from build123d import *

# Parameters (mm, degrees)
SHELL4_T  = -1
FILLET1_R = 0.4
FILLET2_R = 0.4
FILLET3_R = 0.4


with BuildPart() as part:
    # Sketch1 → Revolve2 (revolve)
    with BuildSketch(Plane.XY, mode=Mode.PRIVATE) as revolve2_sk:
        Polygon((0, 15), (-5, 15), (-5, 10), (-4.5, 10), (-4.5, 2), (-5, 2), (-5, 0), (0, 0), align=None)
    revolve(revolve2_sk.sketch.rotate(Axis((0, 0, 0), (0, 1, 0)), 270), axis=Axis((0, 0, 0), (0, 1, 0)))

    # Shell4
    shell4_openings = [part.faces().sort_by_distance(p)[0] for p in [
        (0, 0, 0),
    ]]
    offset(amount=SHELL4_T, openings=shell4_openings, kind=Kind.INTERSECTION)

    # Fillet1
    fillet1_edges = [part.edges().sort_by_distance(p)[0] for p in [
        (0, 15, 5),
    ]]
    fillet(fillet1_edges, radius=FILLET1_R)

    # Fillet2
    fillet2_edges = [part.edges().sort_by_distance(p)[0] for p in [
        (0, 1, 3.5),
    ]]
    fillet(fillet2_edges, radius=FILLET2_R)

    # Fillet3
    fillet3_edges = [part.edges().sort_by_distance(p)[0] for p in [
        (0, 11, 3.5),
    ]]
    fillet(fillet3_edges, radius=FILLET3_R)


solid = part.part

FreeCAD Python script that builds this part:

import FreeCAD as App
import Part
import Sketcher

V = App.Vector


def edges_at(feature, points):
    """Names of the edges that pass closest to the given points."""
    edges = feature.Shape.Edges
    near = lambda p: min(range(len(edges)), key=lambda i: edges[i].distToShape(Part.Vertex(*p))[0])
    return sorted({f"Edge{near(p) + 1}" for p in points})


def faces_at(feature, points):
    """Names of the faces that lie closest to the given points."""
    faces = feature.Shape.Faces
    near = lambda p: min(range(len(faces)), key=lambda i: faces[i].distToShape(Part.Vertex(*p))[0])
    return sorted({f"Face{near(p) + 1}" for p in points})

doc = App.newDocument("Part")
body = doc.addObject("PartDesign::Body", "Body")

sketch1 = body.newObject("Sketcher::SketchObject", "Sketch")
sketch1.AttachmentSupport = (doc.getObject("XY_Plane"), [""])
sketch1.MapMode = "FlatFace"
sketch1.addGeometry(Part.LineSegment(V(0, 15, 0), V(-5, 15, 0)), False)
sketch1.addGeometry(Part.LineSegment(V(-5, 15, 0), V(-5, 10, 0)), False)
sketch1.addGeometry(Part.LineSegment(V(-5, 10, 0), V(-4.5, 10, 0)), False)
sketch1.addGeometry(Part.LineSegment(V(-4.5, 10, 0), V(-4.5, 2, 0)), False)
sketch1.addGeometry(Part.LineSegment(V(-4.5, 2, 0), V(-5, 2, 0)), False)
sketch1.addGeometry(Part.LineSegment(V(-5, 2, 0), V(-5, 0, 0)), False)
sketch1.addGeometry(Part.LineSegment(V(-5, 0, 0), V(0, 0, 0)), False)
sketch1.addGeometry(Part.LineSegment(V(0, 0, 0), V(0, 15, 0)), False)
sketch1.addConstraint(Sketcher.Constraint("Coincident", 0, 2, 1, 1))
sketch1.addConstraint(Sketcher.Constraint("Coincident", 1, 2, 2, 1))
sketch1.addConstraint(Sketcher.Constraint("Coincident", 2, 2, 3, 1))
sketch1.addConstraint(Sketcher.Constraint("Coincident", 3, 2, 4, 1))
sketch1.addConstraint(Sketcher.Constraint("Coincident", 4, 2, 5, 1))
sketch1.addConstraint(Sketcher.Constraint("Coincident", 5, 2, 6, 1))
sketch1.addConstraint(Sketcher.Constraint("Coincident", 6, 2, 7, 1))
sketch1.addConstraint(Sketcher.Constraint("Coincident", 7, 2, 0, 1))
sketch1.addConstraint(Sketcher.Constraint("Horizontal", 0))
sketch1.addConstraint(Sketcher.Constraint("Vertical", 1))
sketch1.addConstraint(Sketcher.Constraint("Horizontal", 2))
sketch1.addConstraint(Sketcher.Constraint("Vertical", 3))
sketch1.addConstraint(Sketcher.Constraint("Horizontal", 4))
sketch1.addConstraint(Sketcher.Constraint("Vertical", 5))
sketch1.addConstraint(Sketcher.Constraint("Horizontal", 6))
sketch1.addConstraint(Sketcher.Constraint("Vertical", 7))
sketch1.addConstraint(Sketcher.Constraint("Coincident", 6, 2, -1, 1))
sketch1.addConstraint(Sketcher.Constraint("Vertical", 1, 2, 4, 2))
sketch1.addConstraint(Sketcher.Constraint("Equal", 6, 1))
sketch1.addConstraint(Sketcher.Constraint("DistanceX", 0, 2, 0, 1, 5.0))
sketch1.addConstraint(Sketcher.Constraint("DistanceY", 3, 2, 3, 1, 8.0))
sketch1.addConstraint(Sketcher.Constraint("DistanceY", 5, 2, 5, 1, 2.0))
sketch1.addConstraint(Sketcher.Constraint("DistanceX", 2, 1, 2, 2, 0.5))
revolution = body.newObject("PartDesign::Revolution", "Revolution")
revolution.Profile = sketch1
revolution.ReferenceAxis = (sketch1, ["V_Axis"])
revolution.Angle = 360
doc.recompute()

thickness = body.newObject("PartDesign::Thickness", "Thickness")
thickness.Base = (revolution, faces_at(revolution, [(0, 0, 0)]))
thickness.Value = 1
thickness.Reversed = True
thickness.Join = "Intersection"
doc.recompute()

fillet = body.newObject("PartDesign::Fillet", "Fillet")
fillet.Base = (thickness, edges_at(thickness, [(0, 15, 5)]))
fillet.Radius = 0.4
doc.recompute()

fillet2 = body.newObject("PartDesign::Fillet", "Fillet001")
fillet2.Base = (fillet, edges_at(fillet, [(0, 1, 3.5)]))
fillet2.Radius = 0.4
doc.recompute()

fillet3 = body.newObject("PartDesign::Fillet", "Fillet002")
fillet3.Base = (fillet2, edges_at(fillet2, [(0, 11, 3.5)]))
fillet3.Radius = 0.4

doc.recompute()
